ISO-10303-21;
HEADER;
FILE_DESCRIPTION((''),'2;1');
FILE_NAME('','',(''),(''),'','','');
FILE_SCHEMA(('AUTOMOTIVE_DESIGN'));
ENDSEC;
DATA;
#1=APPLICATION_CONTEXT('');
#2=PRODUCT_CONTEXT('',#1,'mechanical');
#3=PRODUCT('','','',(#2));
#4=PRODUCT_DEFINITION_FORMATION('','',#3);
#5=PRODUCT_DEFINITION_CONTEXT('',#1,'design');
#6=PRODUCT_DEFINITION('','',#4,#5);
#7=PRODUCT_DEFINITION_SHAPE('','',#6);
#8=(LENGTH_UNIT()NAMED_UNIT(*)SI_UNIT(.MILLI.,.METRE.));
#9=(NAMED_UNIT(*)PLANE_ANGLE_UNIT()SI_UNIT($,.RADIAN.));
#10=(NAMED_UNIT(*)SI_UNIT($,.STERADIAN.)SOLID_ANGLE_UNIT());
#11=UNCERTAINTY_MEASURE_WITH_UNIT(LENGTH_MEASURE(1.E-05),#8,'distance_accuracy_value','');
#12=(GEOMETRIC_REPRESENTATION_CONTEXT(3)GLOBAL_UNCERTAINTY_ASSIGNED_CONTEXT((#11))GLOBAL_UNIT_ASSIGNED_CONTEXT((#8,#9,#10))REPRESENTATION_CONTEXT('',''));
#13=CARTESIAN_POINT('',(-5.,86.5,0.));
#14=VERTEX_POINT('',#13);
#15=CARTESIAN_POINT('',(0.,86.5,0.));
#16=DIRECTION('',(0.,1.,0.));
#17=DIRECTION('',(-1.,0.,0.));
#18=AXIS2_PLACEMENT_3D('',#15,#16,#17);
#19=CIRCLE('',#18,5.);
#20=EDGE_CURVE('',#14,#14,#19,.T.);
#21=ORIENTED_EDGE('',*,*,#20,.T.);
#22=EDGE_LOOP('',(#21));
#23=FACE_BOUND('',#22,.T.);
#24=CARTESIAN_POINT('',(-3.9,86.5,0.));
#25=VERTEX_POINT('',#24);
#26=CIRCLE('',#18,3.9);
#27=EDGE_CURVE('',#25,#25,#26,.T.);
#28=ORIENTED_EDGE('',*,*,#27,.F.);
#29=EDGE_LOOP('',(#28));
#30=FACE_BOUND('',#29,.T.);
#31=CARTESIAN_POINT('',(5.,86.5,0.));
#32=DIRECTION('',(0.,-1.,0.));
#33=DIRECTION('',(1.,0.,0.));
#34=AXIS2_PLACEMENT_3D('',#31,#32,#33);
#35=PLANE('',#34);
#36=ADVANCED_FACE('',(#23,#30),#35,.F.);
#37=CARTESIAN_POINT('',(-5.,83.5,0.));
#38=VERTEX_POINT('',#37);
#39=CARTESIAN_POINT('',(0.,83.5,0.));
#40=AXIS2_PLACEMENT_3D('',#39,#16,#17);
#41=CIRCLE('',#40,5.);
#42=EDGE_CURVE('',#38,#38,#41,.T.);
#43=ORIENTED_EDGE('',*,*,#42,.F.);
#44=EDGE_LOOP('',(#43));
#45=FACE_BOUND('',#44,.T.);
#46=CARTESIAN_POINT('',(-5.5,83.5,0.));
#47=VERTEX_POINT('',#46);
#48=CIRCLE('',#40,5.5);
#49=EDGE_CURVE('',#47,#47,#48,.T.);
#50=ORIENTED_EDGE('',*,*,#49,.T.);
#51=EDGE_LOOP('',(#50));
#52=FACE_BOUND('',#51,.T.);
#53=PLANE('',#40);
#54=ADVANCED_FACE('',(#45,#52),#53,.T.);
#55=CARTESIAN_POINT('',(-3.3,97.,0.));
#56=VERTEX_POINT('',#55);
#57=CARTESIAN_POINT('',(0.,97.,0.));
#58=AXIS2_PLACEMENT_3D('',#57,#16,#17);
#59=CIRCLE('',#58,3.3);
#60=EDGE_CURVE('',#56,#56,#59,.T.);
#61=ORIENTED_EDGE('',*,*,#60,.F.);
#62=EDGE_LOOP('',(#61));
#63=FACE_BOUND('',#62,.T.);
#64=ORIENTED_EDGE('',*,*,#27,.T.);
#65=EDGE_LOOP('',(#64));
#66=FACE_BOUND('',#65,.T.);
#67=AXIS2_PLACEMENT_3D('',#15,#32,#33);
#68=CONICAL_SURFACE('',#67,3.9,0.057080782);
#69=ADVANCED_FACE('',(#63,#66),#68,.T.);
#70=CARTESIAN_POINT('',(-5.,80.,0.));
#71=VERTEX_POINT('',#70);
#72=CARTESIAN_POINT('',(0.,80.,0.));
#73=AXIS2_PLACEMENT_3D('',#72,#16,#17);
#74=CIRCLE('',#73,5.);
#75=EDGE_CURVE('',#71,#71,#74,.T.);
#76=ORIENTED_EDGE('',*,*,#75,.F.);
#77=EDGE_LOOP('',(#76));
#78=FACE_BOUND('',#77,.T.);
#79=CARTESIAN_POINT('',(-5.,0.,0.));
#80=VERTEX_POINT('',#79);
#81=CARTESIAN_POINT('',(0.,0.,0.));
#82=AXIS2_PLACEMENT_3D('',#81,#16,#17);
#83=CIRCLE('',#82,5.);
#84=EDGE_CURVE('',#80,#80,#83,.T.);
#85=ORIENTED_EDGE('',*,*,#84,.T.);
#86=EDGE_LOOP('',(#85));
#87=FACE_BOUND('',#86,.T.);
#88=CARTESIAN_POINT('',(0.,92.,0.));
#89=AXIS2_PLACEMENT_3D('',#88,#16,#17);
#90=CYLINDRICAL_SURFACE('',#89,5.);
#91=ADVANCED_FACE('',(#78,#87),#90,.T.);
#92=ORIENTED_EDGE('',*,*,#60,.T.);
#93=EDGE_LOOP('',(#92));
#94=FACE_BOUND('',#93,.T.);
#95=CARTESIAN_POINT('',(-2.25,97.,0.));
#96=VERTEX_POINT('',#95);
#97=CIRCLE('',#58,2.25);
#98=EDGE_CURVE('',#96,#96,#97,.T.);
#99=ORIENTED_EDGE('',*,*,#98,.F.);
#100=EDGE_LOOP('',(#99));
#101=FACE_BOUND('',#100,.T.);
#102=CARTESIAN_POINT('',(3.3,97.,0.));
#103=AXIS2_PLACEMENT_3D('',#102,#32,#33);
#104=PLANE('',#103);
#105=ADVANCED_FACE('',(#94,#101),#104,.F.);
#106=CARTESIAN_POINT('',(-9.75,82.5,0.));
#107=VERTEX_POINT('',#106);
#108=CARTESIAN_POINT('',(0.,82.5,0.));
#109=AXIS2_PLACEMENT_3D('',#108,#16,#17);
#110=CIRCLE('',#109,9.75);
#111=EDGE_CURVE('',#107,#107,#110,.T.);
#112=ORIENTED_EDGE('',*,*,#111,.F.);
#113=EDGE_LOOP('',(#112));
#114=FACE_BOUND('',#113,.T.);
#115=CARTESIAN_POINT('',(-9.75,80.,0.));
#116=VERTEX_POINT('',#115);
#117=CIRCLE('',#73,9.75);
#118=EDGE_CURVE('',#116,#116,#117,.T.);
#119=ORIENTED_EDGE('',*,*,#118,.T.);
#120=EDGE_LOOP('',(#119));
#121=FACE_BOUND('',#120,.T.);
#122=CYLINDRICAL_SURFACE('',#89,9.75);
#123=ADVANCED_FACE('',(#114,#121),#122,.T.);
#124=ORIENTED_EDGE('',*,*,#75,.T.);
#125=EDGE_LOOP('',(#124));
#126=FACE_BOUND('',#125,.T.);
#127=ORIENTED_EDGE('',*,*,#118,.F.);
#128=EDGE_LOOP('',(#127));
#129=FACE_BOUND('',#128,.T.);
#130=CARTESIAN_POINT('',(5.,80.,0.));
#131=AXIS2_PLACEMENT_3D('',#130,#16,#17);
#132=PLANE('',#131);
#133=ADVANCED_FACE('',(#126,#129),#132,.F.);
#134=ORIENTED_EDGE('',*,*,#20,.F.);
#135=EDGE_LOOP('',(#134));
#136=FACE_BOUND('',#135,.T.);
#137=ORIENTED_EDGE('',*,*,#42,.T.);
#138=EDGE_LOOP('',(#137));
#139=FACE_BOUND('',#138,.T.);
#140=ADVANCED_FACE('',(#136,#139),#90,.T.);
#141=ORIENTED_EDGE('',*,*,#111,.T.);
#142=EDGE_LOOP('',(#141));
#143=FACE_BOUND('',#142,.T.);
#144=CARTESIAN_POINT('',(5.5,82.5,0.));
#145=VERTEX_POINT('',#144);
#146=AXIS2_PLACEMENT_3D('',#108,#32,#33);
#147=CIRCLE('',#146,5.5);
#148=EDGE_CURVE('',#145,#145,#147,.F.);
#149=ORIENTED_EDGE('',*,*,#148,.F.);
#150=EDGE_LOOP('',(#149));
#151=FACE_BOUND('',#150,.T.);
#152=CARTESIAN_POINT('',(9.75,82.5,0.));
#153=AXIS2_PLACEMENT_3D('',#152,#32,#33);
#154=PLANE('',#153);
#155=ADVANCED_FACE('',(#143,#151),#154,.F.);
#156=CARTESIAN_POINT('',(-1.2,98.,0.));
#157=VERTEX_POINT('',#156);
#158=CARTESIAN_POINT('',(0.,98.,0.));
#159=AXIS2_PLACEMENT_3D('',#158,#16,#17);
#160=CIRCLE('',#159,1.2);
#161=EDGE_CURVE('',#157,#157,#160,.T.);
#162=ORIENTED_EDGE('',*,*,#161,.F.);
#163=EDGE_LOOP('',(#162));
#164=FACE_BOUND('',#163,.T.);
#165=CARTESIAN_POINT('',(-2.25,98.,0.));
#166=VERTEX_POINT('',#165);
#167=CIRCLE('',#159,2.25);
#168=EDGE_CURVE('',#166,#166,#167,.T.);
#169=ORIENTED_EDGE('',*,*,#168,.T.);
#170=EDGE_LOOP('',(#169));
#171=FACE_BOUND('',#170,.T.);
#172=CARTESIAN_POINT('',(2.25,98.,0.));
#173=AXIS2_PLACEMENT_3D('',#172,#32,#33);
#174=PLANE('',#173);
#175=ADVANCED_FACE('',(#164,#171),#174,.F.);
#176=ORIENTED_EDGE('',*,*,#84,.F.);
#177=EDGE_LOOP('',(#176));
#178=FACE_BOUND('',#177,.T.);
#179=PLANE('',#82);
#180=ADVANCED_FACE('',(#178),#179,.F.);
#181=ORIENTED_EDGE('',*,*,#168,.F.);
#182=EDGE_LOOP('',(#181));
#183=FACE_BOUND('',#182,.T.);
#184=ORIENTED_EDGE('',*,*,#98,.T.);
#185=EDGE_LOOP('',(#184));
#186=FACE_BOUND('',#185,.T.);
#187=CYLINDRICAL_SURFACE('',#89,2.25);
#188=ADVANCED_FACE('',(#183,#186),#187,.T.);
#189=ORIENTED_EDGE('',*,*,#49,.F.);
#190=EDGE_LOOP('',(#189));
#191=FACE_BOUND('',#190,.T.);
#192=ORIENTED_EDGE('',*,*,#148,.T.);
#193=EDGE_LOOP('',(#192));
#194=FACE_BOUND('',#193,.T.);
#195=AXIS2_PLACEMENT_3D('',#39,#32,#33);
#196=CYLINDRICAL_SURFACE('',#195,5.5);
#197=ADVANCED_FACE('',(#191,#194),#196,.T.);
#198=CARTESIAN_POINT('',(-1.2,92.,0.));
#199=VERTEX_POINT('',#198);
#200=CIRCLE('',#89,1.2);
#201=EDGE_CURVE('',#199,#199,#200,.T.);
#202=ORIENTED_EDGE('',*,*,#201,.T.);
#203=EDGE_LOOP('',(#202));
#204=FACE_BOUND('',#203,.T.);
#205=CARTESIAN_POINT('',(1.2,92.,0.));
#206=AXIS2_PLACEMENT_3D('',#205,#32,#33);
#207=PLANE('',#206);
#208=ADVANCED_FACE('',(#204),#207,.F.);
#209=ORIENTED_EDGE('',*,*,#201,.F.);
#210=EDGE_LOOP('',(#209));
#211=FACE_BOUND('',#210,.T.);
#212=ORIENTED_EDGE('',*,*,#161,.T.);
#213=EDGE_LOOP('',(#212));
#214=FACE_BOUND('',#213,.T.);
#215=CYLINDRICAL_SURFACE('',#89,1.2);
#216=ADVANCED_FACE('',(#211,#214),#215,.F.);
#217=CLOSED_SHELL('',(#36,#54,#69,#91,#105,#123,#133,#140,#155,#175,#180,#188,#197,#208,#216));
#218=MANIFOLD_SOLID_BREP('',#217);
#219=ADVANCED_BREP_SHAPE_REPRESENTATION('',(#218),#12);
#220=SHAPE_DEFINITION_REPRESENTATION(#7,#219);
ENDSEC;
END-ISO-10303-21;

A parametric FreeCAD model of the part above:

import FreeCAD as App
import Part
import Sketcher
Q = App.Units.Quantity

doc = App.newDocument("Part")
body = doc.addObject("PartDesign::Body", "Body")

# Sketch on XY plane
sketch1 = doc.addObject("Sketcher::SketchObject", "Sketch")
body.addObject(sketch1)
sketch1.AttachmentSupport = (doc.XY_Plane, [""])
sketch1.MapMode = "FlatFace"
sketch1.addGeometry([
    Part.LineSegment(App.Vector(0, 0, 0), App.Vector(5, 0, 0)),  # 0
    Part.LineSegment(App.Vector(5, 0, 0), App.Vector(5, 80, 0)),  # 1
    Part.LineSegment(App.Vector(5, 80, 0), App.Vector(9.8, 80, 0)),  # 2
    Part.LineSegment(App.Vector(9.8, 80, 0), App.Vector(9.8, 82.5, 0)),  # 3
    Part.LineSegment(App.Vector(9.8, 82.5, 0), App.Vector(5, 82.5, 0)),  # 4
    Part.LineSegment(App.Vector(5, 82.5, 0), App.Vector(5, 86.5, 0)),  # 5
    Part.LineSegment(App.Vector(5, 86.5, 0), App.Vector(3.9, 86.5, 0)),  # 6
    Part.LineSegment(App.Vector(3.9, 86.5, 0), App.Vector(3.3, 97, 0)),  # 7
    Part.LineSegment(App.Vector(3.3, 97, 0), App.Vector(2.2, 97, 0)),  # 8
    Part.LineSegment(App.Vector(2.2, 97, 0), App.Vector(2.2, 98, 0)),  # 9
    Part.LineSegment(App.Vector(2.2, 98, 0), App.Vector(1.2, 98, 0)),  # 10
    Part.LineSegment(App.Vector(1.2, 98, 0), App.Vector(1.2, 92, 0)),  # 11
    Part.LineSegment(App.Vector(1.2, 92, 0), App.Vector(0, 92, 0)),  # 12
    Part.LineSegment(App.Vector(0, 92, 0), App.Vector(0, 0, 0)),  # 13
], False)
sketch1.addConstraint([
    Sketcher.Constraint("Coincident", 0, 2, 1, 1),
    Sketcher.Constraint("Coincident", 1, 2, 2, 1),
    Sketcher.Constraint("Coincident", 2, 2, 3, 1),
    Sketcher.Constraint("Coincident", 3, 2, 4, 1),
    Sketcher.Constraint("Coincident", 4, 2, 5, 1),
    Sketcher.Constraint("Coincident", 5, 2, 6, 1),
    Sketcher.Constraint("Coincident", 6, 2, 7, 1),
    Sketcher.Constraint("Coincident", 7, 2, 8, 1),
    Sketcher.Constraint("Coincident", 8, 2, 9, 1),
    Sketcher.Constraint("Coincident", 9, 2, 10, 1),
    Sketcher.Constraint("Coincident", 10, 2, 11, 1),
    Sketcher.Constraint("Coincident", 11, 2, 12, 1),
    Sketcher.Constraint("Coincident", 12, 2, 13, 1),
    Sketcher.Constraint("Coincident", 13, 2, 0, 1),
    Sketcher.Constraint("Horizontal", 0),
    Sketcher.Constraint("Vertical", 1),
    Sketcher.Constraint("Horizontal", 2),
    Sketcher.Constraint("Vertical", 3),
    Sketcher.Constraint("Horizontal", 4),
    Sketcher.Constraint("Vertical", 5),
    Sketcher.Constraint("Horizontal", 6),
    Sketcher.Constraint("Horizontal", 8),
    Sketcher.Constraint("Vertical", 9),
    Sketcher.Constraint("Horizontal", 10),
    Sketcher.Constraint("Vertical", 11),
    Sketcher.Constraint("Horizontal", 12),
    Sketcher.Constraint("Vertical", 13),
    Sketcher.Constraint("Coincident", 13, 2, -1, 1),
    Sketcher.Constraint("Vertical", 1, 2, 4, 2),
    Sketcher.Constraint("Equal", 8, 10),
    Sketcher.Constraint("DistanceX", 0, 1, 0, 2, Q("5 mm")),
    Sketcher.Constraint("DistanceY", 1, 1, 1, 2, Q("80 mm")),
    Sketcher.Constraint("DistanceY", 5, 1, 5, 2, Q("4 mm")),
    Sketcher.Constraint("DistanceY", 9, 1, 9, 2, Q("1 mm")),
    Sketcher.Constraint("DistanceY", 11, 2, 11, 1, Q("6 mm")),
    Sketcher.Constraint("DistanceY", 13, 2, 13, 1, Q("92 mm")),
    Sketcher.Constraint("DistanceX", 6, 2, 6, 1, Q("1.1 mm")),
    Sketcher.Constraint("DistanceX", 12, 2, 12, 1, Q("1.2 mm")),
    Sketcher.Constraint("DistanceY", 3, 1, 3, 2, Q("2.5 mm")),
    Sketcher.Constraint("DistanceX", 2, 1, 2, 2, Q("4.75 mm")),
    Sketcher.Constraint("DistanceX", 8, 2, 8, 1, Q("1.05 mm")),
])
revolution = doc.addObject("PartDesign::Revolution", "Revolution")
body.addObject(revolution)
revolution.Profile = sketch1
revolution.ReferenceAxis = (sketch1, ["V_Axis"])
revolution.Angle = 360

# Sketch on XZ plane
sketch2 = doc.addObject("Sketcher::SketchObject", "Sketch001")
body.addObject(sketch2)
sketch2.AttachmentSupport = (doc.XZ_Plane, [""])
sketch2.MapMode = "FlatFace"
sketch2.AttachmentOffset = App.Placement(App.Vector(0, 0, -82.5), App.Rotation())
sketch2.addGeometry(Part.Circle(App.Vector(0, 0, 0), App.Vector(0, 0, 1), 6), False)
sketch2.addConstraint([
    Sketcher.Constraint("Coincident", 0, 3, -1, 1),
    Sketcher.Constraint("Diameter", 0, Q("11 mm")),
])
pad1 = doc.addObject("PartDesign::Pad", "Pad")
body.addObject(pad1)
pad1.Profile = sketch2
pad1.Length = 1
pad1.Reversed = True

doc.recompute()
